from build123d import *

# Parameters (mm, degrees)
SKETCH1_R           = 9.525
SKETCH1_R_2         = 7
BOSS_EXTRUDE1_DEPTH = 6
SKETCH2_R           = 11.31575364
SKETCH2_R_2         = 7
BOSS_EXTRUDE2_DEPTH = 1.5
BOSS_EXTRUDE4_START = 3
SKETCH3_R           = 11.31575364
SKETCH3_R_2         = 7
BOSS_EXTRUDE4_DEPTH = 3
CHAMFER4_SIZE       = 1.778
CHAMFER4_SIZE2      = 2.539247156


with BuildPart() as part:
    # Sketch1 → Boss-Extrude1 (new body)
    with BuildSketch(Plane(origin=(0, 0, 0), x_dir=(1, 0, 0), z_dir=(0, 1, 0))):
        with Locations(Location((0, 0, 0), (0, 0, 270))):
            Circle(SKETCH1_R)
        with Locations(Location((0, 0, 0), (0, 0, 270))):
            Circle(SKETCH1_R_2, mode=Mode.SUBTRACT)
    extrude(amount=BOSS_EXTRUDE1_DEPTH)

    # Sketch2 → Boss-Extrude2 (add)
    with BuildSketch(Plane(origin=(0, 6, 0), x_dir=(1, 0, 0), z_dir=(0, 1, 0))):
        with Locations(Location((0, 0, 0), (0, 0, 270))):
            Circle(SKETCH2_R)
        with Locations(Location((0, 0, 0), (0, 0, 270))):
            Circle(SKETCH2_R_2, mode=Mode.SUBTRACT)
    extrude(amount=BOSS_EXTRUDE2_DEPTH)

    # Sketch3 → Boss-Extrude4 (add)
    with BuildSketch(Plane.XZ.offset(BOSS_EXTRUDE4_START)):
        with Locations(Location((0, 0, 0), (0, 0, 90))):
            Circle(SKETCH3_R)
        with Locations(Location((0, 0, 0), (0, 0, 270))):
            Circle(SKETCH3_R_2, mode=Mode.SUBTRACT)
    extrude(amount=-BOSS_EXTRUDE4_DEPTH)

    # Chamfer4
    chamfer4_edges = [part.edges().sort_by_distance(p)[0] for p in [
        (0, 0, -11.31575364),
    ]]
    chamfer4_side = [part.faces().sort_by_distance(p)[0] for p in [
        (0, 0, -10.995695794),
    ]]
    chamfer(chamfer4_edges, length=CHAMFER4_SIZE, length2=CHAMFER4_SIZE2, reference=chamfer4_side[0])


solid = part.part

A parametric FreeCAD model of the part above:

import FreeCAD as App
import Part
import Sketcher
Q = App.Units.Quantity


def edges_at(feature, points):
    """Names of the edges that pass closest to the given points."""
    edges = feature.Shape.Edges
    near = lambda p: min(range(len(edges)), key=lambda i: edges[i].distToShape(Part.Vertex(*p))[0])
    return sorted({f"Edge{near(p) + 1}" for p in points})

doc = App.newDocument("Part")
body = doc.addObject("PartDesign::Body", "Body")

# Sketch on XZ plane
sketch1 = body.newObject("Sketcher::SketchObject", "Sketch")
sketch1.AttachmentSupport = (doc.getObject("XZ_Plane"), [""])
sketch1.MapMode = "FlatFace"
sketch1.addGeometry([
    Part.Circle(App.Vector(0, 0, 0), App.Vector(0, 0, 1), 10),
    Part.Circle(App.Vector(0, 0, 0), App.Vector(0, 0, 1), 7),
], False)
sketch1.addConstraint([
    Sketcher.Constraint("Coincident", 0, 3, -1, 1),
    Sketcher.Constraint("Coincident", 1, 3, -1, 1),
    Sketcher.Constraint("Diameter", 1, Q("14 mm")),
    Sketcher.Constraint("Diameter", 0, Q("19.05 mm")),
])
pad1 = body.newObject("PartDesign::Pad", "Pad")
pad1.Profile = sketch1
pad1.Length = 6
pad1.Reversed = True

# Sketch on XZ plane
sketch2 = body.newObject("Sketcher::SketchObject", "Sketch001")
sketch2.AttachmentSupport = (doc.getObject("XZ_Plane"), [""])
sketch2.MapMode = "FlatFace"
sketch2.AttachmentOffset = App.Placement(App.Vector(0, 0, -6), App.Rotation())
sketch2.addGeometry([
    Part.Circle(App.Vector(0, 0, 0), App.Vector(0, 0, 1), 11),
    Part.Circle(App.Vector(0, 0, 0), App.Vector(0, 0, 1), 7),
], False)
sketch2.addConstraint([
    Sketcher.Constraint("Coincident", 0, 3, -1, 1),
    Sketcher.Constraint("Coincident", 1, 3, -1, 1),
    Sketcher.Constraint("Diameter", 1, Q("14 mm")),
    Sketcher.Constraint("Diameter", 0, Q("22.631507 mm")),
])
pad2 = body.newObject("PartDesign::Pad", "Pad001")
pad2.Profile = sketch2
pad2.Length = 1.5
pad2.Reversed = True

# Sketch on XZ plane
sketch3 = body.newObject("Sketcher::SketchObject", "Sketch002")
sketch3.AttachmentSupport = (doc.getObject("XZ_Plane"), [""])
sketch3.MapMode = "FlatFace"
sketch3.AttachmentOffset = App.Placement(App.Vector(0, 0, 3), App.Rotation())
sketch3.addGeometry([
    Part.Circle(App.Vector(0, 0, 0), App.Vector(0, 0, 1), 11),
    Part.Circle(App.Vector(0, 0, 0), App.Vector(0, 0, 1), 7),
], False)
sketch3.addConstraint([
    Sketcher.Constraint("Coincident", 0, 3, -1, 1),
    Sketcher.Constraint("Coincident", 1, 3, -1, 1),
    Sketcher.Constraint("Diameter", 1, Q("14 mm")),
    Sketcher.Constraint("Diameter", 0, Q("22.631507 mm")),
])
pad3 = body.newObject("PartDesign::Pad", "Pad002")
pad3.Profile = sketch3
pad3.Length = 3
pad3.Reversed = True
doc.recompute()

chamfer = body.newObject("PartDesign::Chamfer", "Chamfer")
chamfer.Base = (pad3, edges_at(pad3, [(0, 0, -11.316)]))
chamfer.ChamferType = "Two distances"
chamfer.Size = 1.778
chamfer.Size2 = 2.539247

doc.recompute()
